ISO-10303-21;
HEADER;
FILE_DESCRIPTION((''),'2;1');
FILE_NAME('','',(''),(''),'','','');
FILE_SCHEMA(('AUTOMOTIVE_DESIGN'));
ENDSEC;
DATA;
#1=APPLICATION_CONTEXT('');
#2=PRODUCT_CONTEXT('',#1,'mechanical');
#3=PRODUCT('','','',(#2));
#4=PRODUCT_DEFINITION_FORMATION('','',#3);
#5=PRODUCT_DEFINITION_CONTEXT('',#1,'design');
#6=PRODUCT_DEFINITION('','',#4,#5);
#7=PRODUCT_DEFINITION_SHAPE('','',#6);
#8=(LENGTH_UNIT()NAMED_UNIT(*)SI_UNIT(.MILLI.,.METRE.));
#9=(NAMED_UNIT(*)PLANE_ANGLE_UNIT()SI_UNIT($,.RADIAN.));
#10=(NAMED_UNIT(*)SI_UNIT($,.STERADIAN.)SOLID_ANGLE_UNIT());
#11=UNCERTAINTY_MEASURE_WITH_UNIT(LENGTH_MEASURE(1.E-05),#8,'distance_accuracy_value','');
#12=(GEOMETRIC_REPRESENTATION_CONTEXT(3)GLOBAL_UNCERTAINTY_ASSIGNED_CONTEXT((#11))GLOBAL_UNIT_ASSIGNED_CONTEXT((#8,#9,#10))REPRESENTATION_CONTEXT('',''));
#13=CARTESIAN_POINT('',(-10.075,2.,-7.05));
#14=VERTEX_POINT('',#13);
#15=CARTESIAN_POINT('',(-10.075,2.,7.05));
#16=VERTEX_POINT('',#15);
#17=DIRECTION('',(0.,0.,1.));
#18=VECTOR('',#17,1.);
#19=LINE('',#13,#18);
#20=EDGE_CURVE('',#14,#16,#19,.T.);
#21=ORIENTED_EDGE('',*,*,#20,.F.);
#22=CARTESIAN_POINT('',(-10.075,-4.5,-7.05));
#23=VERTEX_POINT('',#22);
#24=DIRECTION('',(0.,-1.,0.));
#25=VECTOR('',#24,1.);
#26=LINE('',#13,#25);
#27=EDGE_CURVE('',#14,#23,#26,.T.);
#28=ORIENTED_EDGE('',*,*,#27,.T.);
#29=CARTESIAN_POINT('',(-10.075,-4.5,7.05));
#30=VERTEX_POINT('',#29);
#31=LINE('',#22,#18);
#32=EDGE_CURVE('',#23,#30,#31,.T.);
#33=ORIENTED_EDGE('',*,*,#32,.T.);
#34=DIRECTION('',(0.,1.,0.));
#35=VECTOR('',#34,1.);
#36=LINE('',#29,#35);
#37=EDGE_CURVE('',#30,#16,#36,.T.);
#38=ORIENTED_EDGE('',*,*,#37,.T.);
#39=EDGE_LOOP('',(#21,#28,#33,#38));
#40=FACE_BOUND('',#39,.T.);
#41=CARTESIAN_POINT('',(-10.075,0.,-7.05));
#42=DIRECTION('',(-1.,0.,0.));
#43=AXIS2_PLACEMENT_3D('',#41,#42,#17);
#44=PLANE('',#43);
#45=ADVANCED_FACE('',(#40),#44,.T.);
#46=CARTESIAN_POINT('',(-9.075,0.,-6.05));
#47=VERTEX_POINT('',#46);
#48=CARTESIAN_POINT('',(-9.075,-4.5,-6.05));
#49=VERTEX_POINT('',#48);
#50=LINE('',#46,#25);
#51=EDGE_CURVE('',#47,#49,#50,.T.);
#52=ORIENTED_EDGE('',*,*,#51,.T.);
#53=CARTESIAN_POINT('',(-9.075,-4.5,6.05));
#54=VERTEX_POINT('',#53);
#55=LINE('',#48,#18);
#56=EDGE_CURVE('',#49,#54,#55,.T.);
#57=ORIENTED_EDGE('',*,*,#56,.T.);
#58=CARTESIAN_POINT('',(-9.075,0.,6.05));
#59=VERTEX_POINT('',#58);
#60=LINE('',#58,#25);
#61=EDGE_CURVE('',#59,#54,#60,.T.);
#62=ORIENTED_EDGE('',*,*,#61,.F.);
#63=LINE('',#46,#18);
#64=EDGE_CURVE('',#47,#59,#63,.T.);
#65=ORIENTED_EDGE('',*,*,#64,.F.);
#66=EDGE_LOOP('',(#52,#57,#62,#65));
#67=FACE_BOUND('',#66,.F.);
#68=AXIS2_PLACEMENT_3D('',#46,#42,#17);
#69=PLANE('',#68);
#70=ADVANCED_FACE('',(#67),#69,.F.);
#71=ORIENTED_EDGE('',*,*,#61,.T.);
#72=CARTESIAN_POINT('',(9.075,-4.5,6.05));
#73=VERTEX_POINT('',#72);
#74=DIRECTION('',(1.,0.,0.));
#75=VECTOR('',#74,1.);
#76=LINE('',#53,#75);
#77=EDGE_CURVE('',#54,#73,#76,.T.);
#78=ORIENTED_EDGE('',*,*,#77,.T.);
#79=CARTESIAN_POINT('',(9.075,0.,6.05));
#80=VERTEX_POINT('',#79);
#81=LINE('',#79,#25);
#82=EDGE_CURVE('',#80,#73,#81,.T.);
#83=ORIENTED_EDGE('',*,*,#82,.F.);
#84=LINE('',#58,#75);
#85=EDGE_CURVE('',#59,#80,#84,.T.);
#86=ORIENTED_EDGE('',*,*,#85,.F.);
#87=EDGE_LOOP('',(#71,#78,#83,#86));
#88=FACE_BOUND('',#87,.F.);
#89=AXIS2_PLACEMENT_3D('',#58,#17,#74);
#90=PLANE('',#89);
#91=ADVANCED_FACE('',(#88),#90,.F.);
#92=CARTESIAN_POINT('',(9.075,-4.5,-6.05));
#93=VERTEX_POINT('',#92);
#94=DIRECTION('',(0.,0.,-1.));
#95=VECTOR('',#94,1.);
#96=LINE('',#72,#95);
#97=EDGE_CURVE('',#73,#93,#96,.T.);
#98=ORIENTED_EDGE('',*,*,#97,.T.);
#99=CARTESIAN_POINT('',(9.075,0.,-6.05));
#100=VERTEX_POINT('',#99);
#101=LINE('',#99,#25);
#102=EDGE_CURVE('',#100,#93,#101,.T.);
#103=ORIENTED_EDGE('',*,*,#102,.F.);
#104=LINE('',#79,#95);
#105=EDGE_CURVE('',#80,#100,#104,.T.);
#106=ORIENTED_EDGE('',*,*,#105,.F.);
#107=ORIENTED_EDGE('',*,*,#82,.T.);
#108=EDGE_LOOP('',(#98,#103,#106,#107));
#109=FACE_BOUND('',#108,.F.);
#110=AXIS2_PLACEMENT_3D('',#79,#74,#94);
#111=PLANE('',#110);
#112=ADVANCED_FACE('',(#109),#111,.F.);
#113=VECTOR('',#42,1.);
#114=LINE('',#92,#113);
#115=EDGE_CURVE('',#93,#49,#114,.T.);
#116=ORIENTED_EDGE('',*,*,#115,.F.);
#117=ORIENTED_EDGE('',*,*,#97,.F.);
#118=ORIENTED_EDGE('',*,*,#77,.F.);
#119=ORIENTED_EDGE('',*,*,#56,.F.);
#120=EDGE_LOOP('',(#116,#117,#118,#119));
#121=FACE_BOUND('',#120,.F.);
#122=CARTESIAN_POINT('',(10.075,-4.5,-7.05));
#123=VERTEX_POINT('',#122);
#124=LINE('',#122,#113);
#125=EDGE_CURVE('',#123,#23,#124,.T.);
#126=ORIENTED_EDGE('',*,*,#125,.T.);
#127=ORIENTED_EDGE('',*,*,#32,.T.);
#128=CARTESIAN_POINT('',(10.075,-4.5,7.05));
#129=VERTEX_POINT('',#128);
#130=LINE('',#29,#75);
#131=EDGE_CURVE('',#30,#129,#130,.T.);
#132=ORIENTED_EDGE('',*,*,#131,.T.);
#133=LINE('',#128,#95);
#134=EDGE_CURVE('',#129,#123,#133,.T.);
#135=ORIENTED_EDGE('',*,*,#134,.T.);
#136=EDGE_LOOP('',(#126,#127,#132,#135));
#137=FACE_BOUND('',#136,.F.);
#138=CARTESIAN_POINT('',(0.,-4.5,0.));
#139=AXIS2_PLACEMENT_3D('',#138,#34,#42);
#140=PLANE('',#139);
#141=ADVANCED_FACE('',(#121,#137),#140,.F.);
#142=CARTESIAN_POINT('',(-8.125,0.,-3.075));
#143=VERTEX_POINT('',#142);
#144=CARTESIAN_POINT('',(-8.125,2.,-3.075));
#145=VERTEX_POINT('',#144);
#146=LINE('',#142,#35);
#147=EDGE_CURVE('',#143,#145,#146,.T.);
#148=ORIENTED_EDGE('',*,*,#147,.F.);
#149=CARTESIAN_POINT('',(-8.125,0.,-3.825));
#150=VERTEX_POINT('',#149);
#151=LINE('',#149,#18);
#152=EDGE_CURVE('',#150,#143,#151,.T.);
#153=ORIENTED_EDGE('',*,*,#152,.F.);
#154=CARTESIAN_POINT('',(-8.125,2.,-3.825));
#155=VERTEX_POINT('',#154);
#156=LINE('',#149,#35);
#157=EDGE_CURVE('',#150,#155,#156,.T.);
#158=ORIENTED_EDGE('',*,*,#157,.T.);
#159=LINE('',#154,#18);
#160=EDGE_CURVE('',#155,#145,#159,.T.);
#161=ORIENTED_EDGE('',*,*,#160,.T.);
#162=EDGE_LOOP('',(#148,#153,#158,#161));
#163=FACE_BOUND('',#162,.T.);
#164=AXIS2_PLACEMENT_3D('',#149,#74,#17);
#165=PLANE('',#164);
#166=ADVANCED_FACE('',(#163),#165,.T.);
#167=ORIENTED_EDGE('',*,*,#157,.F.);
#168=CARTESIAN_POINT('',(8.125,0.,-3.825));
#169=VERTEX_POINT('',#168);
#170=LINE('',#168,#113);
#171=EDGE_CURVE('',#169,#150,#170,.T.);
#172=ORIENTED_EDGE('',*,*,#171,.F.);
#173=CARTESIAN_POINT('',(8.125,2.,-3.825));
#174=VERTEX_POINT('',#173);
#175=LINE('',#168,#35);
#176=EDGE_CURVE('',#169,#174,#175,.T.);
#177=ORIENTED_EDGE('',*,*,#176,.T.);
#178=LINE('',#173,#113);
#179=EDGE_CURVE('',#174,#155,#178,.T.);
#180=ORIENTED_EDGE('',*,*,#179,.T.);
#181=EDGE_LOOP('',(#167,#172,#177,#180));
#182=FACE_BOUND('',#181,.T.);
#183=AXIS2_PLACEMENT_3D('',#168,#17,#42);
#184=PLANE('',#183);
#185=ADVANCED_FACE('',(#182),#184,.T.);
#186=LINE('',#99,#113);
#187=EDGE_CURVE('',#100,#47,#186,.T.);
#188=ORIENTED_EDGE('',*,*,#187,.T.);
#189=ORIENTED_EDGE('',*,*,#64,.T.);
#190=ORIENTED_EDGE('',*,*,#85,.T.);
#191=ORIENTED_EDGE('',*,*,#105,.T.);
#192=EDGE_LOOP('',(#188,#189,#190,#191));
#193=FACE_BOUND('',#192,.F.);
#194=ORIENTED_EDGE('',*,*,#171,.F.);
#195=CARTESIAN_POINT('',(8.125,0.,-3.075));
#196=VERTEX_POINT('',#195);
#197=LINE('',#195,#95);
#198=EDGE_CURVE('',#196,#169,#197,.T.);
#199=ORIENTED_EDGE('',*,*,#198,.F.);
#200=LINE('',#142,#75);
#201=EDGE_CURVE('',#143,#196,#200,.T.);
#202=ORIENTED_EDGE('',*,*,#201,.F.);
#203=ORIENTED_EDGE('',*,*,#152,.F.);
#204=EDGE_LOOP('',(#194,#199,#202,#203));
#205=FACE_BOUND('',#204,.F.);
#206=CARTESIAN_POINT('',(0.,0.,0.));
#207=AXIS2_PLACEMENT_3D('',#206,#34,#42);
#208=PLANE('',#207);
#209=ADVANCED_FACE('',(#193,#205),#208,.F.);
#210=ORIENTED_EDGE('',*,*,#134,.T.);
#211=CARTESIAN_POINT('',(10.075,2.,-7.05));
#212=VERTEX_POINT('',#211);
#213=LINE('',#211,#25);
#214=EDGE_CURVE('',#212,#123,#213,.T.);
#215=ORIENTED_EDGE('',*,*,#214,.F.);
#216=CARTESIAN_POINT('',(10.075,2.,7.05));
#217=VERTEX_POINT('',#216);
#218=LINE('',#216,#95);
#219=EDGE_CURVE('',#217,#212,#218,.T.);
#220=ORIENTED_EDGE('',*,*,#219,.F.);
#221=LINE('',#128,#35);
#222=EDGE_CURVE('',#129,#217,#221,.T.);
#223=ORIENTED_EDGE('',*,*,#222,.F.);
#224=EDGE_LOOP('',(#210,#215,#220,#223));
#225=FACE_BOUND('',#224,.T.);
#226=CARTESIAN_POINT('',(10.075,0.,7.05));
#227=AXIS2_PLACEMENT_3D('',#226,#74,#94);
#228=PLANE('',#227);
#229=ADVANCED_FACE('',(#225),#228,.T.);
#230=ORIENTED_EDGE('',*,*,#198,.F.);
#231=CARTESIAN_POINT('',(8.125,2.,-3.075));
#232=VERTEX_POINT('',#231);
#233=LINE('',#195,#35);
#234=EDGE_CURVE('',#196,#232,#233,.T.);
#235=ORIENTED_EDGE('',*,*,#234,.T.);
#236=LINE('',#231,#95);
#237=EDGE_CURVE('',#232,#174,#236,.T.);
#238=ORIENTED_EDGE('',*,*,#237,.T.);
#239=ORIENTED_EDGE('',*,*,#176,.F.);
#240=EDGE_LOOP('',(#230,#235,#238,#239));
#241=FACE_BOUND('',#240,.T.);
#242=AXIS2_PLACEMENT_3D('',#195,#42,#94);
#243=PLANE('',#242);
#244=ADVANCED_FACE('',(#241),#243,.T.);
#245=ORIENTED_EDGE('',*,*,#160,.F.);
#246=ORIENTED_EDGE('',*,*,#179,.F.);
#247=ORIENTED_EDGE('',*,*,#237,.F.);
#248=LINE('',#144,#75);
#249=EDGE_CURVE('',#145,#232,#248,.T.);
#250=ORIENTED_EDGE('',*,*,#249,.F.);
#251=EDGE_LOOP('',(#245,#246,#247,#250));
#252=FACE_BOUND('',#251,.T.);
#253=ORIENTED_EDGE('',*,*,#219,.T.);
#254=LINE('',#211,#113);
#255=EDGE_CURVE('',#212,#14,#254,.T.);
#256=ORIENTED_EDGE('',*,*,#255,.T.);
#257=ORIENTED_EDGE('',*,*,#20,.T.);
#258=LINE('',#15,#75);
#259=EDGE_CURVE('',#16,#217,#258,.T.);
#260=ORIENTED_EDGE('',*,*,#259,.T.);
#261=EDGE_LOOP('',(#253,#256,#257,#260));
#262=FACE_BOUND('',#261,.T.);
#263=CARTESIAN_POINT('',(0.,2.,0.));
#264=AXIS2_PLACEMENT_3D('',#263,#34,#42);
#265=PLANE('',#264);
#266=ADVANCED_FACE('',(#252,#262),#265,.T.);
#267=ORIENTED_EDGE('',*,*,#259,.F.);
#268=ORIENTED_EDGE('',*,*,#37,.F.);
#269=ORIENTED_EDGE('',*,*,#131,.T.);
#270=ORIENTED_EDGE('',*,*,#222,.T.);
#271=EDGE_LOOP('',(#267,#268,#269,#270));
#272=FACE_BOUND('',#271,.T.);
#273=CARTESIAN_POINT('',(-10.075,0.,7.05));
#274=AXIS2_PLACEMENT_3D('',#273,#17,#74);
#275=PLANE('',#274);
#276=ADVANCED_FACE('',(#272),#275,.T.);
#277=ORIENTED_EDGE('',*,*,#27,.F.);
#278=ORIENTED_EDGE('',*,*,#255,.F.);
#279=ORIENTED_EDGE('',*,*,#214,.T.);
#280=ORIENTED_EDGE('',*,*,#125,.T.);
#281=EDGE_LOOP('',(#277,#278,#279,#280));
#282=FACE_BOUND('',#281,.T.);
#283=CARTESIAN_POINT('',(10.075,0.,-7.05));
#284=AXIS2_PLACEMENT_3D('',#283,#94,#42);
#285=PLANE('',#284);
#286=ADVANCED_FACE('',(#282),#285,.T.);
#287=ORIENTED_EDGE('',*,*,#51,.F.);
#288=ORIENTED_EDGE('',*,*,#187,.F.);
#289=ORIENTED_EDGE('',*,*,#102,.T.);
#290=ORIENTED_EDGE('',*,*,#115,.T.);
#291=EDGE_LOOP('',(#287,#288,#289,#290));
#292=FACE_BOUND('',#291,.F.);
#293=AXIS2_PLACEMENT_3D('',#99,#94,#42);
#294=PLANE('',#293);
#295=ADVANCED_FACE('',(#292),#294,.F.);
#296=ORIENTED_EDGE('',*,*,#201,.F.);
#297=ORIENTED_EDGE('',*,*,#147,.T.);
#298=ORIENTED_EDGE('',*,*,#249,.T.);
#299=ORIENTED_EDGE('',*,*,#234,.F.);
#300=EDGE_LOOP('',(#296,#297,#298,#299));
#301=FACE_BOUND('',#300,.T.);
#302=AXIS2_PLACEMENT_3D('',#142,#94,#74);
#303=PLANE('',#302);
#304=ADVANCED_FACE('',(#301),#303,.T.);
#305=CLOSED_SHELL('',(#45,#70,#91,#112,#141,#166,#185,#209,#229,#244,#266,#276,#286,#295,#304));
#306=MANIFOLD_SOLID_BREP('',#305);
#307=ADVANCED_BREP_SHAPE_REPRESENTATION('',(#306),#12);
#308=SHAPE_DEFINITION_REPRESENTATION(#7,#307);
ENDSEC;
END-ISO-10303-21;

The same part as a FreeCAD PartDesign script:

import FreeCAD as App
import Part
import Sketcher
from FreeCAD import Vector


def add_polygon(sketch, points):
    """Adds a closed chain of lines whose ends are joined by coincident constraints."""
    first, n = sketch.GeometryCount, len(points)
    for a, b in zip(points, points[1:] + points[:1]):
        sketch.addGeometry(Part.LineSegment(App.Vector(*a, 0), App.Vector(*b, 0)), False)
    for i in range(n):
        sketch.addConstraint(Sketcher.Constraint("Coincident", first + i, 2, first + (i + 1) % n, 1))

doc = App.newDocument("Part")
body = doc.addObject("PartDesign::Body", "Body")

sketch1 = doc.addObject("Sketcher::SketchObject", "Sketch")
body.addObject(sketch1)
sketch1.AttachmentSupport = (doc.XZ_Plane, [""])
sketch1.MapMode = "FlatFace"
add_polygon(sketch1, [(-10.1, -7), (-10.1, 7), (10.1, 7), (10.1, -7)])
add_polygon(sketch1, [(8.1, -3.1), (-8.1, -3.1), (-8.1, -3.8), (8.1, -3.8)])
sketch1.addConstraint(Sketcher.Constraint("Vertical", 0))
sketch1.addConstraint(Sketcher.Constraint("Horizontal", 1))
sketch1.addConstraint(Sketcher.Constraint("Vertical", 2))
sketch1.addConstraint(Sketcher.Constraint("Horizontal", 3))
sketch1.addConstraint(Sketcher.Constraint("Horizontal", 4))
sketch1.addConstraint(Sketcher.Constraint("Vertical", 5))
sketch1.addConstraint(Sketcher.Constraint("Horizontal", 6))
sketch1.addConstraint(Sketcher.Constraint("Vertical", 7))
sketch1.addConstraint(Sketcher.Constraint("Symmetric", 0, 2, 2, 2, -1, 1))
sketch1.addConstraint(Sketcher.Constraint("DistanceX", 4, 2, 4, 1, 16.25))
sketch1.addConstraint(Sketcher.Constraint("DistanceY", 5, 2, 5, 1, 0.75))
sketch1.addConstraint(Sketcher.Constraint("DistanceY", 0, 1, 0, 2, 14.1))
sketch1.addConstraint(Sketcher.Constraint("DistanceX", 1, 1, 1, 2, 20.15))
sketch1.addConstraint(Sketcher.Constraint("DistanceX", 4, 2, 2, 2, 18.2))
sketch1.addConstraint(Sketcher.Constraint("DistanceY", 4, 2, -1, 1, 3.075))
pad1 = doc.addObject("PartDesign::Pad", "Pad")
body.addObject(pad1)
pad1.Profile = sketch1
pad1.Length = 2
pad1.Reversed = True

sketch2 = doc.addObject("Sketcher::SketchObject", "Sketch001")
body.addObject(sketch2)
sketch2.AttachmentSupport = (doc.XZ_Plane, [""])
sketch2.MapMode = "FlatFace"
add_polygon(sketch2, [(-10, -7), (-10, 7), (10, 7), (10, -7)])
add_polygon(sketch2, [(9, 6), (-9, 6), (-9, -6), (9, -6)])
sketch2.addConstraint(Sketcher.Constraint("Vertical", 0))
sketch2.addConstraint(Sketcher.Constraint("Horizontal", 1))
sketch2.addConstraint(Sketcher.Constraint("Vertical", 2))
sketch2.addConstraint(Sketcher.Constraint("Horizontal", 3))
sketch2.addConstraint(Sketcher.Constraint("Horizontal", 4))
sketch2.addConstraint(Sketcher.Constraint("Vertical", 5))
sketch2.addConstraint(Sketcher.Constraint("Horizontal", 6))
sketch2.addConstraint(Sketcher.Constraint("Vertical", 7))
sketch2.addConstraint(Sketcher.Constraint("Symmetric", 0, 2, 2, 2, -1, 1))
sketch2.addConstraint(Sketcher.Constraint("Symmetric", 4, 2, 6, 2, -1, 1))
sketch2.addConstraint(Sketcher.Constraint("DistanceY", 5, 2, 5, 1, 12.1))
sketch2.addConstraint(Sketcher.Constraint("DistanceX", 0, 2, 4, 2, 1.0))
sketch2.addConstraint(Sketcher.Constraint("DistanceY", 4, 2, 0, 2, 1.0))
sketch2.addConstraint(Sketcher.Constraint("DistanceX", 4, 2, 4, 1, 18.15))
pad2 = doc.addObject("PartDesign::Pad", "Pad001")
body.addObject(pad2)
pad2.Profile = sketch2
pad2.Length = 4.5

doc.recompute()
